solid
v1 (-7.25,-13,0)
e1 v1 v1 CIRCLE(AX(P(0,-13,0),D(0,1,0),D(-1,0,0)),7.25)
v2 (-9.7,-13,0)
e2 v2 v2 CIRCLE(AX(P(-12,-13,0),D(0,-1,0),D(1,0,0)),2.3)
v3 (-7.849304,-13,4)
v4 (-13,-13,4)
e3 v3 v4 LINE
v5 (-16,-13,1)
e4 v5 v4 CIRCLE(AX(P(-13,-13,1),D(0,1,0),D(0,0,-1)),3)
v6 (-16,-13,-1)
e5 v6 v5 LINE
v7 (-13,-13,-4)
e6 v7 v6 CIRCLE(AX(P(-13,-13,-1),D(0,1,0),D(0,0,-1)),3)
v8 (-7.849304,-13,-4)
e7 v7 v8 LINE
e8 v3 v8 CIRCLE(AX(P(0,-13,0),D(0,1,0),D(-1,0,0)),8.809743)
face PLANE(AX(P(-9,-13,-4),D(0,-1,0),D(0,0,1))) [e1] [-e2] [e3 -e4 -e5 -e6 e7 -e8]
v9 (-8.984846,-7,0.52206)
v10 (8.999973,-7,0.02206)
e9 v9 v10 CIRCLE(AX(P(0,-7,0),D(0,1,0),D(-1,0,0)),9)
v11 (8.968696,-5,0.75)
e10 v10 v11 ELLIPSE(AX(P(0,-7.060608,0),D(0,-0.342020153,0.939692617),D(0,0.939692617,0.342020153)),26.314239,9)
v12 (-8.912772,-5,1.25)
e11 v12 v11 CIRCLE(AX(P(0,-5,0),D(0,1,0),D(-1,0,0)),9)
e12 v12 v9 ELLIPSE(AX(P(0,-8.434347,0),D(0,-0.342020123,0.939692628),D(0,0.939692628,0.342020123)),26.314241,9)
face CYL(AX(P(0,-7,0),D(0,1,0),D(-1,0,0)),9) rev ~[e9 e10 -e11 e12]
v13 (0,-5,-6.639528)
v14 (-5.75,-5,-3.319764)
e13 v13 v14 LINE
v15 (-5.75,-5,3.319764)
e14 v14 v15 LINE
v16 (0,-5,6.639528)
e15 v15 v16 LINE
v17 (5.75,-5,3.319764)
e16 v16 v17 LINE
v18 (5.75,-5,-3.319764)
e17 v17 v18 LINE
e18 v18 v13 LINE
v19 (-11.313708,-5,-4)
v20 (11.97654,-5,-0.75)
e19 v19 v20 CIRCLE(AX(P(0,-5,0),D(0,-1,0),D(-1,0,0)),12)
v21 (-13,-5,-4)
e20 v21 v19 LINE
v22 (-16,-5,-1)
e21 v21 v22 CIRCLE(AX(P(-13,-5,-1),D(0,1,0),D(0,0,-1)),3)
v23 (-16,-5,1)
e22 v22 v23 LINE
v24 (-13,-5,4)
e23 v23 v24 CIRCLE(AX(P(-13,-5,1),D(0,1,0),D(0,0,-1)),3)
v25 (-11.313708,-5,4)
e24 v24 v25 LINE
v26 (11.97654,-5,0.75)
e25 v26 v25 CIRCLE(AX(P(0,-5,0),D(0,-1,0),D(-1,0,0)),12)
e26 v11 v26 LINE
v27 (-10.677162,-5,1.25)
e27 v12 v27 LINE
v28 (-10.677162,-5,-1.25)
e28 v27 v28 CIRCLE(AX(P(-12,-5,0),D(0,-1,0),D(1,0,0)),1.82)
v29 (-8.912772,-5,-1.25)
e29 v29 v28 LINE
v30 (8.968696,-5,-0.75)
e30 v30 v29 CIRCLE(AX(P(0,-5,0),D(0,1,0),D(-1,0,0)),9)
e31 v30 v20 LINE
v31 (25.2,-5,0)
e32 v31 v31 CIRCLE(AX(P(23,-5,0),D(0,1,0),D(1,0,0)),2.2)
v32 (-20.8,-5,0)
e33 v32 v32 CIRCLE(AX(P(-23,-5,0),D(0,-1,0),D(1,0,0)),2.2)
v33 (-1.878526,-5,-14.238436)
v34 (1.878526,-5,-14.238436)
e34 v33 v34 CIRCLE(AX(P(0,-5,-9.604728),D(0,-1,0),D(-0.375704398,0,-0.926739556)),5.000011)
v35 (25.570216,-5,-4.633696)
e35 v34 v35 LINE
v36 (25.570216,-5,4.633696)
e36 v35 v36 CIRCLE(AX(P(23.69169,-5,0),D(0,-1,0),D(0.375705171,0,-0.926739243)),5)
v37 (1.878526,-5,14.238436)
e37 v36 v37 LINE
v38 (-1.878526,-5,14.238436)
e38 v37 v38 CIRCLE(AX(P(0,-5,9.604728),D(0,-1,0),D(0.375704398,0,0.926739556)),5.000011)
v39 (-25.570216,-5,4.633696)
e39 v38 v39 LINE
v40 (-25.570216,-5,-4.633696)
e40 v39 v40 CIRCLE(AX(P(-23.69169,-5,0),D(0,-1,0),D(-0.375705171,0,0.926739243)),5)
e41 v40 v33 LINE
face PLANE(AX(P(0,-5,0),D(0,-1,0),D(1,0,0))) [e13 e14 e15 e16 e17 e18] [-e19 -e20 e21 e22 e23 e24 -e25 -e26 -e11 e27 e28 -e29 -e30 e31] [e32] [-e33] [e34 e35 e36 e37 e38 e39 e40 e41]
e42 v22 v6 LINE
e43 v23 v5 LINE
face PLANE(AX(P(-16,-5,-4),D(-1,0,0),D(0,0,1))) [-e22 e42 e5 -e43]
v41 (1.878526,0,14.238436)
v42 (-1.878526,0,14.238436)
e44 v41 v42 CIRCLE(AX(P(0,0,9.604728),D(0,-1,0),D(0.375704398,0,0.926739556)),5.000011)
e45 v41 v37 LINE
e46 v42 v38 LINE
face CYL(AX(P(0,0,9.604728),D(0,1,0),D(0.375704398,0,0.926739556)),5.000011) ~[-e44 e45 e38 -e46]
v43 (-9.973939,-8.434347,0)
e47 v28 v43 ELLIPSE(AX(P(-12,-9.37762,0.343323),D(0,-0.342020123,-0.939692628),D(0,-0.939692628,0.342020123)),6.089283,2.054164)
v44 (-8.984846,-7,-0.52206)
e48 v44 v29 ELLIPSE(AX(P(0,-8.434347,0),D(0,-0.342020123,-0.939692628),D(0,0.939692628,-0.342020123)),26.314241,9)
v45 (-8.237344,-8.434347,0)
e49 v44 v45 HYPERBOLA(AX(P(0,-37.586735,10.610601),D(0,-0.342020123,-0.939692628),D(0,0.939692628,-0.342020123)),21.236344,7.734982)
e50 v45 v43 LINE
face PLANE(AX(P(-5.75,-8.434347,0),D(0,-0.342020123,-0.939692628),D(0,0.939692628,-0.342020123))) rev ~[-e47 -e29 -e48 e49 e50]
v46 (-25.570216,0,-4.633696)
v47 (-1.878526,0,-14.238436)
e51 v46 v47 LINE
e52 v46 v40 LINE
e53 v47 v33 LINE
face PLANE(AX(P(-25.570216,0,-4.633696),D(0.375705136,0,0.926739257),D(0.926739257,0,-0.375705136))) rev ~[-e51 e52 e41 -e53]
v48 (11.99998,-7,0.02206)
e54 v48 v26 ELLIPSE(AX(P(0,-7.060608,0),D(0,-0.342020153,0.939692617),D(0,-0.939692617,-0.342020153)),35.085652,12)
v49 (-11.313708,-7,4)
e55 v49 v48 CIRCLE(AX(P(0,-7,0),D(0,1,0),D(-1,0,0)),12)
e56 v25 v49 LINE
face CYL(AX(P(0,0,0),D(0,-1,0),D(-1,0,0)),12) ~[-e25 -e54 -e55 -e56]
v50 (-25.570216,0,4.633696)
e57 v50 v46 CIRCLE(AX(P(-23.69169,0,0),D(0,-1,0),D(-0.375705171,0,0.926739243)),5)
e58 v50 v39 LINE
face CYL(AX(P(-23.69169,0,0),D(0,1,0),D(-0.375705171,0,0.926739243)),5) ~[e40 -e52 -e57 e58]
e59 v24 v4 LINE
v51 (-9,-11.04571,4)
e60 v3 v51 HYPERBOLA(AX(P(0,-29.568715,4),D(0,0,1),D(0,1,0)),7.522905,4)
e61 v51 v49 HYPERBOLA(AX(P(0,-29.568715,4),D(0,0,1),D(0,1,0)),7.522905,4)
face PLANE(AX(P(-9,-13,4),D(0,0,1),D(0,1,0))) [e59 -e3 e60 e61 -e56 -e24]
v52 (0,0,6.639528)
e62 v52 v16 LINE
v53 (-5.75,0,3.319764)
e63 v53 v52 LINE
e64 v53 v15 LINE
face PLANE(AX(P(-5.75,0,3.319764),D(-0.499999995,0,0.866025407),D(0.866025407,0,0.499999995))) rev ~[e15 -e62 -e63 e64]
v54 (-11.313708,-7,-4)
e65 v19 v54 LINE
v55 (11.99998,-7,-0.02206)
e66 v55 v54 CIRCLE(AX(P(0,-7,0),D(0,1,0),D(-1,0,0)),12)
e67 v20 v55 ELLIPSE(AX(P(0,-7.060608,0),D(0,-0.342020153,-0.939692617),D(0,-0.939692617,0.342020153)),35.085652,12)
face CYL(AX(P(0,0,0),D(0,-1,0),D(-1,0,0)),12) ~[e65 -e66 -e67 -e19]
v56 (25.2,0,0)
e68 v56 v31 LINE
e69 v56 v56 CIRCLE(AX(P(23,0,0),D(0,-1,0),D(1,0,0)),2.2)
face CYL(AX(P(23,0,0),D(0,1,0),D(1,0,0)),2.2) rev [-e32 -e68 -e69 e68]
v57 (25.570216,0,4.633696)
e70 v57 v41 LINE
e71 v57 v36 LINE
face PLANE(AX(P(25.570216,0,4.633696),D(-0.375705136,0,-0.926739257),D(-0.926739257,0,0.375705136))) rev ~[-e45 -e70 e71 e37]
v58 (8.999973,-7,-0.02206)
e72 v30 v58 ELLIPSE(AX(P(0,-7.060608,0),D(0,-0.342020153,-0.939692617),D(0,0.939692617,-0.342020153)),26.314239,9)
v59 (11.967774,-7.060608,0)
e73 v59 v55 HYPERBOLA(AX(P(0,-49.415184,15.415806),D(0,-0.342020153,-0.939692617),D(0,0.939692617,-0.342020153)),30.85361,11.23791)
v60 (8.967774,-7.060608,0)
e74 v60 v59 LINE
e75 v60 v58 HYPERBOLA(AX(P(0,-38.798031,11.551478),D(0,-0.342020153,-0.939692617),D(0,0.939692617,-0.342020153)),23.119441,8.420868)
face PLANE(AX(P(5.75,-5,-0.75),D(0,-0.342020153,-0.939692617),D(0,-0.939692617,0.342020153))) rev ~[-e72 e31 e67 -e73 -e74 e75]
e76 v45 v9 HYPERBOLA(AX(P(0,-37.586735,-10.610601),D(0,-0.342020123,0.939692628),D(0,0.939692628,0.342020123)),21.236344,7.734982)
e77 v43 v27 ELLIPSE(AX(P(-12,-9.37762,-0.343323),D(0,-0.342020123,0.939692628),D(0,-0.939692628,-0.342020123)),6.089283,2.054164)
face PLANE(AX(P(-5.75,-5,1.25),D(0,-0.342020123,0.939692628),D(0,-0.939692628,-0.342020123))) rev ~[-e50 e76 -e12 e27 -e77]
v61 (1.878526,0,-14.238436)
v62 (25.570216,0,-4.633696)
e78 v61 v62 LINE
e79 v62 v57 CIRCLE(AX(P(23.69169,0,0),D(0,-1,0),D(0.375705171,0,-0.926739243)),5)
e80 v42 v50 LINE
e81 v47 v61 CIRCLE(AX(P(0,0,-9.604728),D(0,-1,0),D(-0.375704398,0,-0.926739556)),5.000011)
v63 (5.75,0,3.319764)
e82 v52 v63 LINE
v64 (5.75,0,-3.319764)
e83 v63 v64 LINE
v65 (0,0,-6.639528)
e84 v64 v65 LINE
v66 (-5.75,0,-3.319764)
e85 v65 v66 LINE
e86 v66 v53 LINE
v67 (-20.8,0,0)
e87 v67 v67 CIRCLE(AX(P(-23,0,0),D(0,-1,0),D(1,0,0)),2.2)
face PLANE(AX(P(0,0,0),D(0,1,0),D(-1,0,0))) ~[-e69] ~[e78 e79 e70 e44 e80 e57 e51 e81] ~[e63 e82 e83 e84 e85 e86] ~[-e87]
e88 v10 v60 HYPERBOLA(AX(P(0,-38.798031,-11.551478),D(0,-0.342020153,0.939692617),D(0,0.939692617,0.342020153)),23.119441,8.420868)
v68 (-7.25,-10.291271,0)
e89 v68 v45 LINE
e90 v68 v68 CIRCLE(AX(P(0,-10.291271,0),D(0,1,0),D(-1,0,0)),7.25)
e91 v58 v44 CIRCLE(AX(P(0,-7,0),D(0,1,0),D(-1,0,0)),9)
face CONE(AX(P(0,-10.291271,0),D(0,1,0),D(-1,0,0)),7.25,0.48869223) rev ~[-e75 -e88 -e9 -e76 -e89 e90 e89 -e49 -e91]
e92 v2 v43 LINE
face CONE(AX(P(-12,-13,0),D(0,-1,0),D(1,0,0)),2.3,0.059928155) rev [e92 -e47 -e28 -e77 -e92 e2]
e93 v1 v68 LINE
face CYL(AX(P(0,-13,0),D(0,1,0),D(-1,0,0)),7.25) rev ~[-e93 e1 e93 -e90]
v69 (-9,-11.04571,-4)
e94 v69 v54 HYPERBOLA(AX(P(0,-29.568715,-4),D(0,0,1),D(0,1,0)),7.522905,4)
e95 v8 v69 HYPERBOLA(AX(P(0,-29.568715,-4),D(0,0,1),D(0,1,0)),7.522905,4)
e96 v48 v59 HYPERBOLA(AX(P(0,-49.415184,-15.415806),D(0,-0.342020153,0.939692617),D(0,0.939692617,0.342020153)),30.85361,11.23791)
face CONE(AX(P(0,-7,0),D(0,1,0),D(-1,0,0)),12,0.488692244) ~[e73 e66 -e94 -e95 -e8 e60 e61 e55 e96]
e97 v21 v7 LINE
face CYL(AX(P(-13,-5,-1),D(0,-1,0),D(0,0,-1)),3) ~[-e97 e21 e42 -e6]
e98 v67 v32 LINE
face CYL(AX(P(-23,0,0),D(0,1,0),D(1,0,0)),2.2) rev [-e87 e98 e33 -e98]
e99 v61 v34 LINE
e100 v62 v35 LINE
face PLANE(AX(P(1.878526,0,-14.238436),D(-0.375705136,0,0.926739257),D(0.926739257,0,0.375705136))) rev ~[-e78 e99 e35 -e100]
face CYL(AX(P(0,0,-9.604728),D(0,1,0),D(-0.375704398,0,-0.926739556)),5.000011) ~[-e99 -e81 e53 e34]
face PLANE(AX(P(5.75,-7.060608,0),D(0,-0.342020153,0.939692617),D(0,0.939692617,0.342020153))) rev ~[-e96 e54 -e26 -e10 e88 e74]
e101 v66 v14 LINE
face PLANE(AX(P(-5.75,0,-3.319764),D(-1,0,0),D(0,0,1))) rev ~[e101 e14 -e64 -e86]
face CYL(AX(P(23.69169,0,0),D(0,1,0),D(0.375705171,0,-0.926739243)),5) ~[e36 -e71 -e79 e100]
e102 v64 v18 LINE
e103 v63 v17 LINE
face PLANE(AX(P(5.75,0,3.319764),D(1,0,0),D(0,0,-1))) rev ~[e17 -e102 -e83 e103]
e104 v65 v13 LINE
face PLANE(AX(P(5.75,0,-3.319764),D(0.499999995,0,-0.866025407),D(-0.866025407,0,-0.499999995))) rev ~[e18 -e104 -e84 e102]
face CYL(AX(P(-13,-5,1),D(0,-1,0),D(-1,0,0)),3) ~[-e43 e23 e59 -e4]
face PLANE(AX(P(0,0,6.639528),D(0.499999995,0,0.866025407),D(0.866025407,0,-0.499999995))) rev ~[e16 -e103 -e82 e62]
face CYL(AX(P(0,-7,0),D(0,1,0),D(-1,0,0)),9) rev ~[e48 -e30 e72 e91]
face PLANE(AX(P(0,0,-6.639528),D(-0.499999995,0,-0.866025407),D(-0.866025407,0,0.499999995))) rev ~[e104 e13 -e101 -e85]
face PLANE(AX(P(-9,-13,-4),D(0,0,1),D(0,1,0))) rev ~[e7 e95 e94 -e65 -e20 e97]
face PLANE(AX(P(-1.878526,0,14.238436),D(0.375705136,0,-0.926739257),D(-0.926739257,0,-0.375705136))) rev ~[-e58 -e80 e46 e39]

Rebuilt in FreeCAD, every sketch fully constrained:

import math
import FreeCAD as App
import Part
import Sketcher
from FreeCAD import Vector
Q = App.Units.Quantity


def edges_at(feature, points):
    """Names of the edges that pass closest to the given points."""
    edges = feature.Shape.Edges
    near = lambda p: min(range(len(edges)), key=lambda i: edges[i].distToShape(Part.Vertex(*p))[0])
    return sorted({f"Edge{near(p) + 1}" for p in points})


def add_polygon(sketch, points):
    """Adds a closed chain of lines whose ends are joined by coincident constraints."""
    first, n = sketch.GeometryCount, len(points)
    for a, b in zip(points, points[1:] + points[:1]):
        sketch.addGeometry(Part.LineSegment(App.Vector(*a, 0), App.Vector(*b, 0)), False)
    for i in range(n):
        sketch.addConstraint(Sketcher.Constraint("Coincident", first + i, 2, first + (i + 1) % n, 1))

doc = App.newDocument("Part")
body = doc.addObject("PartDesign::Body", "Body")

# Sketch on XZ plane
sketch1 = body.newObject("Sketcher::SketchObject", "Sketch")
sketch1.AttachmentSupport = (doc.getObject("XZ_Plane"), [""])
sketch1.MapMode = "FlatFace"
sketch1.addGeometry(Part.LineSegment(Vector(-1.9, 14.2, 0), Vector(-25.6, 4.6, 0)), False)  # 0
sketch1.addGeometry(Part.ArcOfCircle(Part.Circle(Vector(-23.7, 0, 0), Vector(0, 0, 1), 5), math.radians(112), math.radians(248)), False)  # 1
sketch1.addGeometry(Part.LineSegment(Vector(-25.6, -4.6, 0), Vector(-1.9, -14.2, 0)), False)  # 2
sketch1.addGeometry(Part.ArcOfCircle(Part.Circle(Vector(0, -9.6, 0), Vector(0, 0, 1), 5), math.radians(-112), math.radians(-68)), False)  # 3
sketch1.addGeometry(Part.LineSegment(Vector(1.9, -14.2, 0), Vector(25.6, -4.6, 0)), False)  # 4
sketch1.addGeometry(Part.ArcOfCircle(Part.Circle(Vector(23.7, 0, 0), Vector(0, 0, 1), 5), math.radians(-68), math.radians(68)), False)  # 5
sketch1.addGeometry(Part.LineSegment(Vector(25.6, 4.6, 0), Vector(1.9, 14.2, 0)), False)  # 6
sketch1.addGeometry(Part.ArcOfCircle(Part.Circle(Vector(0, 9.6, 0), Vector(0, 0, 1), 5), math.radians(68), math.radians(112)), False)  # 7
sketch1.addGeometry(Part.Circle(Vector(-23, 0, 0), Vector(0, 0, 1), 2.2), False)  # 8
add_polygon(sketch1, [(-5.8, 3.3), (0, 6.6), (5.8, 3.3), (5.8, -3.3), (0, -6.6), (-5.8, -3.3)])  # lines 9-14
sketch1.addGeometry(Part.Circle(Vector(23, 0, 0), Vector(0, 0, 1), 2.2), False)  # 15
sketch1.addConstraint(Sketcher.Constraint("Tangent", 0, 2, 1, 1))
sketch1.addConstraint(Sketcher.Constraint("Tangent", 1, 2, 2, 1))
sketch1.addConstraint(Sketcher.Constraint("Tangent", 2, 2, 3, 1))
sketch1.addConstraint(Sketcher.Constraint("Tangent", 3, 2, 4, 1))
sketch1.addConstraint(Sketcher.Constraint("Tangent", 4, 2, 5, 1))
sketch1.addConstraint(Sketcher.Constraint("Tangent", 5, 2, 6, 1))
sketch1.addConstraint(Sketcher.Constraint("Tangent", 6, 2, 7, 1))
sketch1.addConstraint(Sketcher.Constraint("Tangent", 7, 2, 0, 1))
sketch1.addConstraint(Sketcher.Constraint("Vertical", 11))
sketch1.addConstraint(Sketcher.Constraint("Vertical", 14))
sketch1.addConstraint(Sketcher.Constraint("Equal", 1, 5))
sketch1.addConstraint(Sketcher.Constraint("Equal", 3, 7))
sketch1.addConstraint(Sketcher.Constraint("Equal", 8, 15))
sketch1.addConstraint(Sketcher.Constraint("Symmetric", 1, 3, 5, 3, -1, 1))
sketch1.addConstraint(Sketcher.Constraint("Symmetric", 3, 3, 7, 3, -1, 1))
sketch1.addConstraint(Sketcher.Constraint("Symmetric", 8, 3, 15, 3, -1, 1))
sketch1.addConstraint(Sketcher.Constraint("Symmetric", 9, 2, 12, 2, -1, 1))
sketch1.addConstraint(Sketcher.Constraint("Symmetric", 10, 2, 13, 2, -1, 1))
sketch1.addConstraint(Sketcher.Constraint("Symmetric", 2, 2, 3, 2, -2))
sketch1.addConstraint(Sketcher.Constraint("PointOnObject", 8, 3, -1))
sketch1.addConstraint(Sketcher.Constraint("PointOnObject", 9, 2, -2))
sketch1.addConstraint(Sketcher.Constraint("Parallel", 9, 12))
sketch1.addConstraint(Sketcher.Constraint("Horizontal", 11, 2, 13, 2))
sketch1.addConstraint(Sketcher.Constraint("Radius", 1, Q("5 mm")))
sketch1.addConstraint(Sketcher.Constraint("Diameter", 8, Q("4.4 mm")))
sketch1.addConstraint(Sketcher.Constraint("Angle", 9, Q("30 deg")))
sketch1.addConstraint(Sketcher.Constraint("DistanceX", 8, 3, -1, 1, Q("23 mm")))
sketch1.addConstraint(Sketcher.Constraint("DistanceX", 13, 2, 11, 2, Q("11.5 mm")))
sketch1.addConstraint(Sketcher.Constraint("Radius", 3, Q("5.000011 mm")))
sketch1.addConstraint(Sketcher.Constraint("DistanceY", 11, 2, 11, 1, Q("6.639528 mm")))
sketch1.addConstraint(Sketcher.Constraint("DistanceY", 9, 2, 7, 3, Q("2.9652 mm")))
sketch1.addConstraint(Sketcher.Constraint("Distance", 0, Q("25.564569 mm")))
pad1 = body.newObject("PartDesign::Pad", "Pad")
pad1.Profile = sketch1
pad1.Length = 5

# Sketch on XY plane
sketch2 = body.newObject("Sketcher::SketchObject", "Sketch001")
sketch2.AttachmentSupport = (doc.getObject("XY_Plane"), [""])
sketch2.MapMode = "FlatFace"
add_polygon(sketch2, [(-9, 0), (-12, 0), (-12, -7), (-8.8, -13), (-7.2, -13), (-7.2, -10.3), (-9, -7)])  # lines 0-6
sketch2.addConstraint(Sketcher.Constraint("Horizontal", 0))
sketch2.addConstraint(Sketcher.Constraint("Vertical", 1))
sketch2.addConstraint(Sketcher.Constraint("Horizontal", 3))
sketch2.addConstraint(Sketcher.Constraint("Vertical", 4))
sketch2.addConstraint(Sketcher.Constraint("Vertical", 6))
sketch2.addConstraint(Sketcher.Constraint("PointOnObject", 0, 2, -1))
sketch2.addConstraint(Sketcher.Constraint("Parallel", 2, 5))
sketch2.addConstraint(Sketcher.Constraint("Horizontal", 1, 2, 5, 2))
sketch2.addConstraint(Sketcher.Constraint("DistanceX", 0, 2, 0, 1, Q("3 mm")))
sketch2.addConstraint(Sketcher.Constraint("DistanceY", 1, 2, 1, 1, Q("7 mm")))
sketch2.addConstraint(Sketcher.Constraint("Angle", 2, Q("-61.999997 deg")))
sketch2.addConstraint(Sketcher.Constraint("DistanceX", 0, 2, -1, 1, Q("12 mm")))
sketch2.addConstraint(Sketcher.Constraint("DistanceY", 2, 2, -1, 1, Q("13 mm")))
sketch2.addConstraint(Sketcher.Constraint("DistanceX", 3, 2, -1, 1, Q("7.25 mm")))
revolution = body.newObject("PartDesign::Revolution", "Revolution")
revolution.Profile = sketch2
revolution.ReferenceAxis = (sketch2, ["V_Axis"])
revolution.Angle = 360

# Sketch on XZ plane
sketch3 = body.newObject("Sketcher::SketchObject", "Sketch002")
sketch3.AttachmentSupport = (doc.getObject("XZ_Plane"), [""])
sketch3.MapMode = "FlatFace"
sketch3.AttachmentOffset = App.Placement(Vector(0, 0, 5), App.Rotation())
add_polygon(sketch3, [(-16, 4), (-16, -4), (-9, -4), (-9, 4)])  # lines 0-3
sketch3.addConstraint(Sketcher.Constraint("Vertical", 0))
sketch3.addConstraint(Sketcher.Constraint("Horizontal", 1))
sketch3.addConstraint(Sketcher.Constraint("Vertical", 2))
sketch3.addConstraint(Sketcher.Constraint("Horizontal", 3))
sketch3.addConstraint(Sketcher.Constraint("DistanceX", 1, 1, 1, 2, Q("7 mm")))
sketch3.addConstraint(Sketcher.Constraint("DistanceY", 0, 2, 0, 1, Q("8 mm")))
sketch3.addConstraint(Sketcher.Constraint("DistanceX", 0, 2, -1, 1, Q("16 mm")))
sketch3.addConstraint(Sketcher.Constraint("DistanceY", 0, 2, -1, 1, Q("4 mm")))
pad2 = body.newObject("PartDesign::Pad", "Pad001")
pad2.Profile = sketch3
pad2.Length = 8

# Sketch on XY plane
sketch4 = body.newObject("Sketcher::SketchObject", "Sketch003")
sketch4.AttachmentSupport = (doc.getObject("XY_Plane"), [""])
sketch4.MapMode = "FlatFace"
add_polygon(sketch4, [(-12, -13), (-9.7, -13), (-10.2, -5), (-12, -5)])  # lines 0-3
sketch4.addGeometry(Part.LineSegment(Vector(-12, -5, 0), Vector(-12, -13, 0)), True)  # axis
sketch4.addConstraint(Sketcher.Constraint("Horizontal", 0))
sketch4.addConstraint(Sketcher.Constraint("Horizontal", 2))
sketch4.addConstraint(Sketcher.Constraint("Vertical", 3))
sketch4.addConstraint(Sketcher.Constraint("Vertical", 4))
sketch4.addConstraint(Sketcher.Constraint("Coincident", 4, 1, 2, 2))
sketch4.addConstraint(Sketcher.Constraint("Horizontal", 0, 2, 4, 2))
sketch4.addConstraint(Sketcher.Constraint("DistanceY", 3, 2, 3, 1, Q("8 mm")))
sketch4.addConstraint(Sketcher.Constraint("DistanceX", 0, 1, 0, 2, Q("2.3 mm")))
sketch4.addConstraint(Sketcher.Constraint("DistanceY", 0, 2, -1, 1, Q("13 mm")))
sketch4.addConstraint(Sketcher.Constraint("DistanceX", 2, 2, -1, 1, Q("12 mm")))
sketch4.addConstraint(Sketcher.Constraint("DistanceX", 2, 2, 2, 1, Q("1.82 mm")))
groove = body.newObject("PartDesign::Groove", "Groove")
groove.Profile = sketch4
groove.ReferenceAxis = (sketch4, ["Axis0"])
groove.Angle = 360

# Sketch on YZ plane
sketch5 = body.newObject("Sketcher::SketchObject", "Sketch004")
sketch5.AttachmentSupport = (doc.getObject("YZ_Plane"), [""])
sketch5.MapMode = "FlatFace"
sketch5.AttachmentOffset = App.Placement(Vector(0, 0, -5.75), App.Rotation())
add_polygon(sketch5, [(-8.4, 0), (-5, -1.2), (-5, 1.2)])  # lines 0-2
sketch5.addConstraint(Sketcher.Constraint("Vertical", 1))
sketch5.addConstraint(Sketcher.Constraint("PointOnObject", 2, 2, -1))
sketch5.addConstraint(Sketcher.Constraint("Equal", 0, 2))
sketch5.addConstraint(Sketcher.Constraint("Angle", 0, Q("-19.999999 deg")))
sketch5.addConstraint(Sketcher.Constraint("DistanceY", 1, 1, 1, 2, Q("2.5 mm")))
sketch5.addConstraint(Sketcher.Constraint("DistanceX", 0, 2, -1, 1, Q("5 mm")))
pocket1 = body.newObject("PartDesign::Pocket", "Pocket")
pocket1.Profile = sketch5
pocket1.Length = 7

# Sketch on YZ plane
sketch6 = body.newObject("Sketcher::SketchObject", "Sketch005")
sketch6.AttachmentSupport = (doc.getObject("YZ_Plane"), [""])
sketch6.MapMode = "FlatFace"
sketch6.AttachmentOffset = App.Placement(Vector(0, 0, 5.75), App.Rotation())
add_polygon(sketch6, [(-7.1, 0), (-5, 0.8), (-5, -0.8)])  # lines 0-2
sketch6.addConstraint(Sketcher.Constraint("Vertical", 1))
sketch6.addConstraint(Sketcher.Constraint("PointOnObject", 2, 2, -1))
sketch6.addConstraint(Sketcher.Constraint("Equal", 0, 2))
sketch6.addConstraint(Sketcher.Constraint("Angle", 0, Q("20.000001 deg")))
sketch6.addConstraint(Sketcher.Constraint("DistanceY", 1, 2, 1, 1, Q("1.5 mm")))
sketch6.addConstraint(Sketcher.Constraint("DistanceX", 0, 2, -1, 1, Q("5 mm")))
pocket2 = body.newObject("PartDesign::Pocket", "Pocket001")
pocket2.Profile = sketch6
pocket2.Type = "ThroughAll"
pocket2.Reversed = True

# Sketch on YZ plane
sketch7 = body.newObject("Sketcher::SketchObject", "Sketch006")
sketch7.AttachmentSupport = (doc.getObject("YZ_Plane"), [""])
sketch7.MapMode = "FlatFace"
sketch7.AttachmentOffset = App.Placement(Vector(0, 0, -9), App.Rotation())
add_polygon(sketch7, [(-13, 4), (-13, -4), (-11, -4), (-11, 4)])  # lines 0-3
sketch7.addConstraint(Sketcher.Constraint("Vertical", 0))
sketch7.addConstraint(Sketcher.Constraint("Horizontal", 1))
sketch7.addConstraint(Sketcher.Constraint("Vertical", 2))
sketch7.addConstraint(Sketcher.Constraint("Horizontal", 3))
sketch7.addConstraint(Sketcher.Constraint("DistanceY", 0, 2, 0, 1, Q("8 mm")))
sketch7.addConstraint(Sketcher.Constraint("DistanceX", 0, 2, -1, 1, Q("13 mm")))
sketch7.addConstraint(Sketcher.Constraint("DistanceY", 0, 2, -1, 1, Q("4 mm")))
sketch7.addConstraint(Sketcher.Constraint("DistanceX", 1, 1, 1, 2, Q("1.95429 mm")))
pad3 = body.newObject("PartDesign::Pad", "Pad002")
pad3.Profile = sketch7
pad3.Length = 1.5
doc.recompute()

fillet = body.newObject("PartDesign::Fillet", "Fillet")
fillet.Base = (pad3, edges_at(pad3, [(-16, -9, -4)]))
fillet.Radius = 3
doc.recompute()

fillet2 = body.newObject("PartDesign::Fillet", "Fillet001")
fillet2.Base = (fillet, edges_at(fillet, [(-16, -9, 4)]))
fillet2.Radius = 3

doc.recompute()
